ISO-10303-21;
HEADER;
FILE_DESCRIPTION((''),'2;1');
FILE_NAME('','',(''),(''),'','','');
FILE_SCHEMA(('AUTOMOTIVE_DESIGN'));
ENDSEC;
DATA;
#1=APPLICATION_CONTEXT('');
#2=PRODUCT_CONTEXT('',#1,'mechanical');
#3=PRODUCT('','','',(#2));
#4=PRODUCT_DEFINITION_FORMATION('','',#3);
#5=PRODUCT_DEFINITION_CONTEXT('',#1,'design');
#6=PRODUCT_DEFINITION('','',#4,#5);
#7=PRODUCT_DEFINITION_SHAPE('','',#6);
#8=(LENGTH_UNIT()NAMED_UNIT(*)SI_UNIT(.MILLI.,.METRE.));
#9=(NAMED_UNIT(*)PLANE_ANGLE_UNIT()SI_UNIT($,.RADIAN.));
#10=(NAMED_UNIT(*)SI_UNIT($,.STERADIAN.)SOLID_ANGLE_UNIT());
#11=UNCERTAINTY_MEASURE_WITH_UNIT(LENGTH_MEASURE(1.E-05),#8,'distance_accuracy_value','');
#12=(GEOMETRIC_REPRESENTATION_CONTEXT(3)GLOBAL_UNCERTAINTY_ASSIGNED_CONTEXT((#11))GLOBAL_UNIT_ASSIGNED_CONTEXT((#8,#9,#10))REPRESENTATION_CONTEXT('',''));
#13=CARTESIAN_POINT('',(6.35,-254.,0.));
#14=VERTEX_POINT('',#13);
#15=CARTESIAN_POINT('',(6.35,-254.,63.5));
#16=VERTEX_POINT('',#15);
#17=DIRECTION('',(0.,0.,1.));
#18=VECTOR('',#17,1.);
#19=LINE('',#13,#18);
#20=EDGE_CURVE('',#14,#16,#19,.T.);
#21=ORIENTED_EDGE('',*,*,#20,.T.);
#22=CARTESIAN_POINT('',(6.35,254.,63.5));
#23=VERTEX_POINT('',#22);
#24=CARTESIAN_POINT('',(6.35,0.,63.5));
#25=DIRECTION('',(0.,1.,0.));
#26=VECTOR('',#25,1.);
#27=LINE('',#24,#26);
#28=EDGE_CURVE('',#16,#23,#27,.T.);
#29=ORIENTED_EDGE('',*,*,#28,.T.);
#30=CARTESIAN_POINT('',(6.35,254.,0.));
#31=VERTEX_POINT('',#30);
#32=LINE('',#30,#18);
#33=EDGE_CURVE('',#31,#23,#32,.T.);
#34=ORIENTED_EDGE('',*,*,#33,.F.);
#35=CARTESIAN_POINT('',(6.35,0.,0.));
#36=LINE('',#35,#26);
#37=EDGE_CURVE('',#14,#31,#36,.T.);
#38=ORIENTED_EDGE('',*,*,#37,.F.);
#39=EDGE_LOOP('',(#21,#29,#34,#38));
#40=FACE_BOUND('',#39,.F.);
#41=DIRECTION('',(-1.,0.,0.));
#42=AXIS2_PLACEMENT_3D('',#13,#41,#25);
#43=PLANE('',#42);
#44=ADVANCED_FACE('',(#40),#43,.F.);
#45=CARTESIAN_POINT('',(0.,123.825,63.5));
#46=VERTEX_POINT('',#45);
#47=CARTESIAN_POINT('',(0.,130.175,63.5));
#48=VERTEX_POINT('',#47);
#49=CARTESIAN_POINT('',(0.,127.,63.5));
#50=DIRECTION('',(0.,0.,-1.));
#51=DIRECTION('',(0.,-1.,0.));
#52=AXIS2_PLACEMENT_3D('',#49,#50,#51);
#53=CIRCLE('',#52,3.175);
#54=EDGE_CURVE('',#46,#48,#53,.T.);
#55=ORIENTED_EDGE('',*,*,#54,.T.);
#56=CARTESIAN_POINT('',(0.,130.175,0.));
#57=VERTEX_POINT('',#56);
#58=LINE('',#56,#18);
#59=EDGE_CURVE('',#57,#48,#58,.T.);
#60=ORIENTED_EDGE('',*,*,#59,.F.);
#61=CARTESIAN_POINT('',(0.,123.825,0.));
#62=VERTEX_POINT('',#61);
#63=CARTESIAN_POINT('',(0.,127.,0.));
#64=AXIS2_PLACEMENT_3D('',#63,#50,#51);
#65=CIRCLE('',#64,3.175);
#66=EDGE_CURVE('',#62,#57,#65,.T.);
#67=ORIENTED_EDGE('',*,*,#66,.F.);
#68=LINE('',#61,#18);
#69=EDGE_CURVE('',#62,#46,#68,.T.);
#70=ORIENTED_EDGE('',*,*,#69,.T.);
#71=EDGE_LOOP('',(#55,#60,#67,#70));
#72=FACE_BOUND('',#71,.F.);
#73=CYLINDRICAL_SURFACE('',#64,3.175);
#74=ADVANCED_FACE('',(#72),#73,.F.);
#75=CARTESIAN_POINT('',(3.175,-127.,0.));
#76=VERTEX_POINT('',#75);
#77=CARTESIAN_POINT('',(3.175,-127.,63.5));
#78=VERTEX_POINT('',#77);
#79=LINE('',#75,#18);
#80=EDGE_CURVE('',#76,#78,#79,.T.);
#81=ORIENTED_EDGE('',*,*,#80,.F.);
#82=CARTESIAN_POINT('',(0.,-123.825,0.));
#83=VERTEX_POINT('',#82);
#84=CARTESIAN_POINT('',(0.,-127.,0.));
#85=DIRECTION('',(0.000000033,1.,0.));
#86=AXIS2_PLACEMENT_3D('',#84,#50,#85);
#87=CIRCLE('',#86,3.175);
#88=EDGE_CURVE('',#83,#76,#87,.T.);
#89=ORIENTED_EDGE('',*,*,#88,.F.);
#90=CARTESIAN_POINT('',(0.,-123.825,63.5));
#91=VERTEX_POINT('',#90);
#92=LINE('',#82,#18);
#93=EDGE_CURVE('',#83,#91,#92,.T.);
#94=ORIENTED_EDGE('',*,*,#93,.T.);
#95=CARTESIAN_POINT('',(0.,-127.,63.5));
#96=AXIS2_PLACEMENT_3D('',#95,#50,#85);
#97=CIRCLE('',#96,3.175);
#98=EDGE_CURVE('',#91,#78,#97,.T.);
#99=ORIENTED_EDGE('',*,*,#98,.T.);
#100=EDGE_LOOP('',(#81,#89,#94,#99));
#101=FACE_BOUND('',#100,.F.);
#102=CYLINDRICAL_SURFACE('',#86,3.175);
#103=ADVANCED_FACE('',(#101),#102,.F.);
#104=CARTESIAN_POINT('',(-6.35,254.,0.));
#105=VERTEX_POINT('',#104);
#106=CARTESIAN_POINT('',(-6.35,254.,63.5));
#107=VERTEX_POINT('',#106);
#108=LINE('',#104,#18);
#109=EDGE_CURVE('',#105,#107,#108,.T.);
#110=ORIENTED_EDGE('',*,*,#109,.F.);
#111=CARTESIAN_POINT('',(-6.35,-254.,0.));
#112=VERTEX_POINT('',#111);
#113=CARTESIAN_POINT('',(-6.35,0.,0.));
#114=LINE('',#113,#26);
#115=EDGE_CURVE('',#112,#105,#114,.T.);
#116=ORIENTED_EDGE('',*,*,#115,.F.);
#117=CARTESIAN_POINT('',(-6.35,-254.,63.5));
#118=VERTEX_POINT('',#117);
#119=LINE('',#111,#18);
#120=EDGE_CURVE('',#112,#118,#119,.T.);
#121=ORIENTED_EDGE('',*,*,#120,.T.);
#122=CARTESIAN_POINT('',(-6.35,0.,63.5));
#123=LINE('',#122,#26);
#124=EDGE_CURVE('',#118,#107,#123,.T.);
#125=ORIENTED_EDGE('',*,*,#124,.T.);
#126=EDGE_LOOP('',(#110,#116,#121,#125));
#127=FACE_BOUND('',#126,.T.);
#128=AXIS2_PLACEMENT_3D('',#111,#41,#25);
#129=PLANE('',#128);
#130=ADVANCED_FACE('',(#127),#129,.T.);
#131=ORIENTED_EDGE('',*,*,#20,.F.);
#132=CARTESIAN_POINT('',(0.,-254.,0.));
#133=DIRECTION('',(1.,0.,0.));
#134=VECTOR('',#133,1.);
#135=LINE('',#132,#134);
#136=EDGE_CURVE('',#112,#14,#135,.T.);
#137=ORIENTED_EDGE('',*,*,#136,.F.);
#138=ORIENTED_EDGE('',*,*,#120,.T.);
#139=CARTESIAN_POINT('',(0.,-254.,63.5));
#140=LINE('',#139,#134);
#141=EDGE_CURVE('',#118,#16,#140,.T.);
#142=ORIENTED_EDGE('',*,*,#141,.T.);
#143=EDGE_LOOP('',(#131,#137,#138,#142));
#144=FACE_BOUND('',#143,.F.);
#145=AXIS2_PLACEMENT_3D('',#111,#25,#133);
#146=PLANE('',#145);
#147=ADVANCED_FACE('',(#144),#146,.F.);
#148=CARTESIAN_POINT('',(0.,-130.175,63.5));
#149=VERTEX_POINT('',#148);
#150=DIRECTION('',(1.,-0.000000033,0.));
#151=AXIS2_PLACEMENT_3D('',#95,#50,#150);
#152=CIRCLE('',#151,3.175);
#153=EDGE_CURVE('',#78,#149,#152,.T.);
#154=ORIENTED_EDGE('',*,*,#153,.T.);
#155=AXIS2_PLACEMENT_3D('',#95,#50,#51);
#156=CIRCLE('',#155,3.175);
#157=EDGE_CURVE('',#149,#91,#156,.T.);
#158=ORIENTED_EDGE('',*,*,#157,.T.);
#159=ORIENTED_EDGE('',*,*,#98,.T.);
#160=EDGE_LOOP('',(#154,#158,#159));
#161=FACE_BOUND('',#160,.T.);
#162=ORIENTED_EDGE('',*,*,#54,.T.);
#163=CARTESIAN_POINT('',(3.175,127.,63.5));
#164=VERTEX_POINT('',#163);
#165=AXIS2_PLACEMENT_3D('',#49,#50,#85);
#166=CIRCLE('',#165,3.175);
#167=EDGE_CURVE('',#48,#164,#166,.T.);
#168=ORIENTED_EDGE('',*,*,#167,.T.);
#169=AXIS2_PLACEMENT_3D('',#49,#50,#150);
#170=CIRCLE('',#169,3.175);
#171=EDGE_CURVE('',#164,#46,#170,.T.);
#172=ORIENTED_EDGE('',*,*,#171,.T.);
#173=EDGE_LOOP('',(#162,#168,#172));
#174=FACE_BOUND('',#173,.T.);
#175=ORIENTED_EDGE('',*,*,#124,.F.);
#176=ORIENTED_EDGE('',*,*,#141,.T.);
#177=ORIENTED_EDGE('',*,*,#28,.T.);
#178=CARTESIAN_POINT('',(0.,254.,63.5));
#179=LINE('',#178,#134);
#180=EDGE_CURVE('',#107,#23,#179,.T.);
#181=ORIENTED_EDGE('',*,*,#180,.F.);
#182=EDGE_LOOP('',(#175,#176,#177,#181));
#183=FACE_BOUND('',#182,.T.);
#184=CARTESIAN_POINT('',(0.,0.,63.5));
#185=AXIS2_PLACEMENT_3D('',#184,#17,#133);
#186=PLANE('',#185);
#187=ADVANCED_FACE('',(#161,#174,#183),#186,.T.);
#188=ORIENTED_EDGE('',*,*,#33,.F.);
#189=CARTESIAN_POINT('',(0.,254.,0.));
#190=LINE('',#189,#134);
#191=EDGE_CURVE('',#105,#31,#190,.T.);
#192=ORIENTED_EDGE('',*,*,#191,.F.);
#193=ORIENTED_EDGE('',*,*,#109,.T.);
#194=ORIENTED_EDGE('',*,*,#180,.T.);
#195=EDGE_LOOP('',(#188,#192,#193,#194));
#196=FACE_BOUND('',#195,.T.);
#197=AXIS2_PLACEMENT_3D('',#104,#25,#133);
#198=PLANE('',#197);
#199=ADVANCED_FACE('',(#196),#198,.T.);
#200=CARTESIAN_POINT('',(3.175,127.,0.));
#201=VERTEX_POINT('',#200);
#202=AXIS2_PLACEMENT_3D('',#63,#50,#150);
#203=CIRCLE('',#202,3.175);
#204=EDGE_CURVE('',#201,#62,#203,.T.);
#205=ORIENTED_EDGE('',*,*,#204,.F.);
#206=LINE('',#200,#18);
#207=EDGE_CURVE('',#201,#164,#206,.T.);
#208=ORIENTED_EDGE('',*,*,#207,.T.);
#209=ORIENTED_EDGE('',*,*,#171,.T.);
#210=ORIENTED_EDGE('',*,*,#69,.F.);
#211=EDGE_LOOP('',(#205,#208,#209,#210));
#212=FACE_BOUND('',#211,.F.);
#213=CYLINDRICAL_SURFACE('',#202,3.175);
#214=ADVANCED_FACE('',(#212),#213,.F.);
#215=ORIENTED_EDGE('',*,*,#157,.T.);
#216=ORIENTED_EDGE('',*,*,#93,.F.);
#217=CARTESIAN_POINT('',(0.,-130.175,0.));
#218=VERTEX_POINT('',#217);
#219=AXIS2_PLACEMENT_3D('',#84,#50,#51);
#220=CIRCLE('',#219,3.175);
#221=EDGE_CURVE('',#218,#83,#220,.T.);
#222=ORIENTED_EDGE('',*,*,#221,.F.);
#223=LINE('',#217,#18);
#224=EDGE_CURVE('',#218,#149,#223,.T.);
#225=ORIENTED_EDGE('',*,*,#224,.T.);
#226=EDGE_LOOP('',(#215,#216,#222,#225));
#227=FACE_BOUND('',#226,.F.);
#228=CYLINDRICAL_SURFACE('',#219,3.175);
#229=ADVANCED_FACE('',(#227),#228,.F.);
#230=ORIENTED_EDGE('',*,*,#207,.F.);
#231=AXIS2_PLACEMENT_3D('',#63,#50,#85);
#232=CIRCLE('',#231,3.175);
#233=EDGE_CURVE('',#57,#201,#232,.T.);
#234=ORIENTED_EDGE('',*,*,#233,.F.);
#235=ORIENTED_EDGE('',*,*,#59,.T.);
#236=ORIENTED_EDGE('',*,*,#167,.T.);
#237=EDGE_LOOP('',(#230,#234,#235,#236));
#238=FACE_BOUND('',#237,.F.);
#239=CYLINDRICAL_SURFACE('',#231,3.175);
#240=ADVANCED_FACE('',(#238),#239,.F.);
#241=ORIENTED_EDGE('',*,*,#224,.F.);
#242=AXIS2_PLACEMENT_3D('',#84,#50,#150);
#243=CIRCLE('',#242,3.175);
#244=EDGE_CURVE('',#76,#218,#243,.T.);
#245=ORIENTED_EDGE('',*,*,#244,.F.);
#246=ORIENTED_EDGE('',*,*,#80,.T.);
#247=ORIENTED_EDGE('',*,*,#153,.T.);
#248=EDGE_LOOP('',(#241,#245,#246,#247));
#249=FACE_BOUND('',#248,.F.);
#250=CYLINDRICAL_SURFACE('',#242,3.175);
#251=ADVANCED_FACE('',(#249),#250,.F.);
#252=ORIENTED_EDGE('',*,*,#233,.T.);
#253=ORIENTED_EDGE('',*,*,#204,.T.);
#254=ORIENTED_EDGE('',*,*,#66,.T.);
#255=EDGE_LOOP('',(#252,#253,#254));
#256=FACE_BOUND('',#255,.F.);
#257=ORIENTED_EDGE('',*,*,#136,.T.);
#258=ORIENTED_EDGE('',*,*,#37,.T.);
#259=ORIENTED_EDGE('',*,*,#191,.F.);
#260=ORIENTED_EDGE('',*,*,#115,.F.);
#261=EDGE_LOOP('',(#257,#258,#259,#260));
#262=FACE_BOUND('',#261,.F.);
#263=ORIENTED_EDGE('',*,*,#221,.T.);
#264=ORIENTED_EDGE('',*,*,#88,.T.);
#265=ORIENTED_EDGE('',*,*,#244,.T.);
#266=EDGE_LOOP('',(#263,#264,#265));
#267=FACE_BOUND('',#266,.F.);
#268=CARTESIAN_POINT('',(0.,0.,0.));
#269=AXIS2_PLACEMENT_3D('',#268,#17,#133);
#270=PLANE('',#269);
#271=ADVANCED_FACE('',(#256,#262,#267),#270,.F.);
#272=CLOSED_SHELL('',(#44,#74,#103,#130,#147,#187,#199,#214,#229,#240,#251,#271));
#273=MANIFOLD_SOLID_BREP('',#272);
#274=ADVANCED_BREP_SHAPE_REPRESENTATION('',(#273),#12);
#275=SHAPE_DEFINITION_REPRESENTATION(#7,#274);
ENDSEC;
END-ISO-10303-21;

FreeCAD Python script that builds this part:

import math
import FreeCAD as App
import Part
import Sketcher
Q = App.Units.Quantity


def add_polygon(sketch, points):
    """Adds a closed chain of lines whose ends are joined by coincident constraints."""
    first, n = sketch.GeometryCount, len(points)
    for a, b in zip(points, points[1:] + points[:1]):
        sketch.addGeometry(Part.LineSegment(App.Vector(*a, 0), App.Vector(*b, 0)), False)
    for i in range(n):
        sketch.addConstraint(Sketcher.Constraint("Coincident", first + i, 2, first + (i + 1) % n, 1))

doc = App.newDocument("Part")
body = doc.addObject("PartDesign::Body", "Body")

sketch1 = doc.addObject("Sketcher::SketchObject", "Sketch")
body.addObject(sketch1)
sketch1.AttachmentSupport = (doc.XY_Plane, [""])
sketch1.MapMode = "FlatFace"
add_polygon(sketch1, [(-6, 254), (-6, -254), (6, -254), (6, 254)])
sketch1.addConstraint([
    Sketcher.Constraint("Vertical", 0),
    Sketcher.Constraint("Horizontal", 1),
    Sketcher.Constraint("Vertical", 2),
    Sketcher.Constraint("Horizontal", 3),
    Sketcher.Constraint("Symmetric", 0, 2, 2, 2, -1, 1),
    Sketcher.Constraint("DistanceY", 0, 2, 0, 1, Q("20 in")),
    Sketcher.Constraint("DistanceX", 1, 1, 1, 2, Q("0.5 in")),
])
pad1 = doc.addObject("PartDesign::Pad", "Pad")
body.addObject(pad1)
pad1.Profile = sketch1
pad1.Length = Q("2.5 in")

sketch2 = doc.addObject("Sketcher::SketchObject", "Sketch001")
body.addObject(sketch2)
sketch2.AttachmentSupport = (doc.XY_Plane, [""])
sketch2.MapMode = "FlatFace"
sketch2.addGeometry([
    Part.ArcOfCircle(Part.Circle(App.Vector(0, -127, 0), App.Vector(0, 0, 1), 3.2), math.radians(-90), math.radians(0)),
    Part.ArcOfCircle(Part.Circle(App.Vector(0, -127, 0), App.Vector(0, 0, 1), 3.2), math.radians(90), math.radians(270)),
    Part.ArcOfCircle(Part.Circle(App.Vector(0, -127, 0), App.Vector(0, 0, 1), 3.2), math.radians(0), math.radians(90)),
    Part.ArcOfCircle(Part.Circle(App.Vector(0, 127, 0), App.Vector(0, 0, 1), 3.2), math.radians(-90), math.radians(0)),
    Part.ArcOfCircle(Part.Circle(App.Vector(0, 127, 0), App.Vector(0, 0, 1), 3.2), math.radians(90), math.radians(270)),
    Part.ArcOfCircle(Part.Circle(App.Vector(0, 127, 0), App.Vector(0, 0, 1), 3.2), math.radians(0), math.radians(90)),
], False)
sketch2.addConstraint([
    Sketcher.Constraint("Tangent", 0, 1, 1, 2),
    Sketcher.Constraint("Tangent", 1, 1, 2, 2),
    Sketcher.Constraint("Tangent", 2, 1, 0, 2),
    Sketcher.Constraint("Tangent", 3, 1, 4, 2),
    Sketcher.Constraint("Tangent", 4, 1, 5, 2),
    Sketcher.Constraint("Tangent", 5, 1, 3, 2),
    Sketcher.Constraint("Equal", 2, 3),
    Sketcher.Constraint("Symmetric", 0, 3, 3, 3, -1, 1),
    Sketcher.Constraint("Symmetric", 2, 1, 5, 1, -1),
    Sketcher.Constraint("PointOnObject", 0, 1, -2),
    Sketcher.Constraint("PointOnObject", 1, 1, -2),
    Sketcher.Constraint("PointOnObject", 3, 1, -2),
    Sketcher.Constraint("PointOnObject", 4, 1, -2),
    Sketcher.Constraint("Horizontal", 1, 3, 2, 1),
    Sketcher.Constraint("DistanceY", 0, 3, -1, 1, Q("5 in")),
    Sketcher.Constraint("Radius", 0, Q("0.125 in")),
])
pocket1 = doc.addObject("PartDesign::Pocket", "Pocket")
body.addObject(pocket1)
pocket1.Profile = sketch2
pocket1.Type = "ThroughAll"
pocket1.Reversed = True

doc.recompute()
